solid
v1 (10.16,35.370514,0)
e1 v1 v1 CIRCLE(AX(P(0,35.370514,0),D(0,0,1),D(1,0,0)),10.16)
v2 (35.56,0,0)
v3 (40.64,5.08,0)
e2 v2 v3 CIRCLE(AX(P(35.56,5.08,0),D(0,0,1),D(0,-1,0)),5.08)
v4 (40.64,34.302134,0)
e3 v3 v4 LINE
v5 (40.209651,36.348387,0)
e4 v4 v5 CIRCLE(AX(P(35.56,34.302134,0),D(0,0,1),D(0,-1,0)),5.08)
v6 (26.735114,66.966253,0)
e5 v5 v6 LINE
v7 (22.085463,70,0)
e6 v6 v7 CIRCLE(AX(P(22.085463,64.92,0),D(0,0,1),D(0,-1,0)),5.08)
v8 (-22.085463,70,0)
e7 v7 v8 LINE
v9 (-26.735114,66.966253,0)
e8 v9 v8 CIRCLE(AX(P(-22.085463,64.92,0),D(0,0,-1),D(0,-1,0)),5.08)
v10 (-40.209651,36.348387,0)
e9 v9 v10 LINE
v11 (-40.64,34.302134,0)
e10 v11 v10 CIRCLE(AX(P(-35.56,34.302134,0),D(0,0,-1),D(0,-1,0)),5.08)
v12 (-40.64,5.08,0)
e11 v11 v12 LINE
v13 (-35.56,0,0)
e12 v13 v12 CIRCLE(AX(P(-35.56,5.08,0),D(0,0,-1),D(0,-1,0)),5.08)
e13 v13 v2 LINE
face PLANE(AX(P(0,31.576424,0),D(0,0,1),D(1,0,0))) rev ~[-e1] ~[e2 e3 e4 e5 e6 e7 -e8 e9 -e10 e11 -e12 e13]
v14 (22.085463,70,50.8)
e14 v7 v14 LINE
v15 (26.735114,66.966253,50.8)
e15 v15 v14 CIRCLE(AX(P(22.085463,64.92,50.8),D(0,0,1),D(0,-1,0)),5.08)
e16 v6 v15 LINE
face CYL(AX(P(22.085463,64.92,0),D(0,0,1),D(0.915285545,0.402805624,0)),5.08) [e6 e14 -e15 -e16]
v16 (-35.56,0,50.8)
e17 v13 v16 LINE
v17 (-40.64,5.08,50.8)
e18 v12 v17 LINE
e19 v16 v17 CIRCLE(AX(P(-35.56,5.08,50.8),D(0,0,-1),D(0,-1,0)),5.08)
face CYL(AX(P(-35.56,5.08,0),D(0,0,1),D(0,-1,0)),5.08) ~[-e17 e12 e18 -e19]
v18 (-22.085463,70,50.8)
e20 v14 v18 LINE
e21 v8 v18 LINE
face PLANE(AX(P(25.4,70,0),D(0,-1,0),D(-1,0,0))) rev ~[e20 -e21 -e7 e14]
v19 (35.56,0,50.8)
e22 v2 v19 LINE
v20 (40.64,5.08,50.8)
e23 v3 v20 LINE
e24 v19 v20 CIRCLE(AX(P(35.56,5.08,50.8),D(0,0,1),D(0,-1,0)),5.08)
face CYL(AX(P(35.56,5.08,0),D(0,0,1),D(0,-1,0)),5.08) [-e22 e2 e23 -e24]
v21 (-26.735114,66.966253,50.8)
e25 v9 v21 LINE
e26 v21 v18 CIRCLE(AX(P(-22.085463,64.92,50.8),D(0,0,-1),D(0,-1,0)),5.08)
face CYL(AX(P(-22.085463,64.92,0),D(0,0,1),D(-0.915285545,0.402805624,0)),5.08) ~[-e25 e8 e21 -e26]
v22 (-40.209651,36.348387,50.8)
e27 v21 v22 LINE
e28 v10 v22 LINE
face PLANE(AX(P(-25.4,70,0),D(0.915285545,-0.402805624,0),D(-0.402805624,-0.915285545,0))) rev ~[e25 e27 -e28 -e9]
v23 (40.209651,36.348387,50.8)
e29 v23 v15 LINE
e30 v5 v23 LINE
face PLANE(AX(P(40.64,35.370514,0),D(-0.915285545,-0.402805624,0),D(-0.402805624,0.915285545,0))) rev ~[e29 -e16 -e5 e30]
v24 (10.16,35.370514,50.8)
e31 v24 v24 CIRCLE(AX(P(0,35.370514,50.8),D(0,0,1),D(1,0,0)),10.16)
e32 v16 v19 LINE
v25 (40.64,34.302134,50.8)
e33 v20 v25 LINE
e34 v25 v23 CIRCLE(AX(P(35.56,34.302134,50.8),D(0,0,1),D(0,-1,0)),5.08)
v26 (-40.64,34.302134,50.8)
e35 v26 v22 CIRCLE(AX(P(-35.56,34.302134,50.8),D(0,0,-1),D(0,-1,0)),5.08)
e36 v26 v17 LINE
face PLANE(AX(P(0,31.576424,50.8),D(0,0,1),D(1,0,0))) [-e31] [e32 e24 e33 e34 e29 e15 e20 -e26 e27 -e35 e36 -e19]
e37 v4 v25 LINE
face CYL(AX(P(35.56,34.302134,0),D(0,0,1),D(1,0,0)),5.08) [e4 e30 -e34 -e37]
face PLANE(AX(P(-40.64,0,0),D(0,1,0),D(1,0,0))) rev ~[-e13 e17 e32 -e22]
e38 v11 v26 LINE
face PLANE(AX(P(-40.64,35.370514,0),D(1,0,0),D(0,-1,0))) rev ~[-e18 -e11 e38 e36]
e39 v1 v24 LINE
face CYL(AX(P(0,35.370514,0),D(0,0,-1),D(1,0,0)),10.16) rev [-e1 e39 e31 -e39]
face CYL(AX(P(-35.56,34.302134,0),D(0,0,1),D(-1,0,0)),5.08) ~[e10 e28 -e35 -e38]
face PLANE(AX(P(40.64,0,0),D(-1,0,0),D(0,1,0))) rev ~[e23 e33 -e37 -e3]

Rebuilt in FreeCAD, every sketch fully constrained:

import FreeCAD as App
import Part
import Sketcher

V = App.Vector
Q = App.Units.Quantity


def edges_at(feature, points):
    """Names of the edges that pass closest to the given points."""
    edges = feature.Shape.Edges
    near = lambda p: min(range(len(edges)), key=lambda i: edges[i].distToShape(Part.Vertex(*p))[0])
    return sorted({f"Edge{near(p) + 1}" for p in points})

doc = App.newDocument("Part")
body = doc.addObject("PartDesign::Body", "Body")

# Sketch on XY plane
sketch1 = body.newObject("Sketcher::SketchObject", "Sketch")
sketch1.AttachmentSupport = (doc.getObject("XY_Plane"), [""])
sketch1.MapMode = "FlatFace"
sketch1.addGeometry(Part.LineSegment(V(-41, 0, 0), V(41, 0, 0)), False)
sketch1.addGeometry(Part.LineSegment(V(41, 0, 0), V(41, 35, 0)), False)
sketch1.addGeometry(Part.LineSegment(V(41, 35, 0), V(25, 70, 0)), False)
sketch1.addGeometry(Part.LineSegment(V(25, 70, 0), V(-25, 70, 0)), False)
sketch1.addGeometry(Part.LineSegment(V(-25, 70, 0), V(-41, 35, 0)), False)
sketch1.addGeometry(Part.LineSegment(V(-41, 35, 0), V(-41, 0, 0)), False)
sketch1.addGeometry(Part.Circle(V(0, 35, 0), V(0, 0, 1), 10), False)
sketch1.addConstraint(Sketcher.Constraint("Coincident", 0, 2, 1, 1))
sketch1.addConstraint(Sketcher.Constraint("Coincident", 1, 2, 2, 1))
sketch1.addConstraint(Sketcher.Constraint("Coincident", 2, 2, 3, 1))
sketch1.addConstraint(Sketcher.Constraint("Coincident", 3, 2, 4, 1))
sketch1.addConstraint(Sketcher.Constraint("Coincident", 4, 2, 5, 1))
sketch1.addConstraint(Sketcher.Constraint("Coincident", 5, 2, 0, 1))
sketch1.addConstraint(Sketcher.Constraint("Horizontal", 0))
sketch1.addConstraint(Sketcher.Constraint("Vertical", 1))
sketch1.addConstraint(Sketcher.Constraint("Horizontal", 3))
sketch1.addConstraint(Sketcher.Constraint("Vertical", 5))
sketch1.addConstraint(Sketcher.Constraint("Symmetric", 0, 2, 5, 2, -1, 1))
sketch1.addConstraint(Sketcher.Constraint("PointOnObject", 6, 3, -2))
sketch1.addConstraint(Sketcher.Constraint("Horizontal", 6, 3, 1, 2))
sketch1.addConstraint(Sketcher.Constraint("Horizontal", 1, 2, 4, 2))
sketch1.addConstraint(Sketcher.Constraint("Equal", 2, 4))
sketch1.addConstraint(Sketcher.Constraint("Diameter", 6, Q("0.8 in")))
sketch1.addConstraint(Sketcher.Constraint("DistanceX", 3, 2, 3, 1, Q("2 in")))
sketch1.addConstraint(Sketcher.Constraint("DistanceX", 0, 1, 0, 2, Q("3.2 in")))
sketch1.addConstraint(Sketcher.Constraint("DistanceY", -1, 1, 2, 2, Q("70 mm")))
sketch1.addConstraint(Sketcher.Constraint("DistanceY", 1, 1, 1, 2, Q("35.370514 mm")))
pad1 = body.newObject("PartDesign::Pad", "Pad")
pad1.Profile = sketch1
pad1.Length = Q("2 in")
doc.recompute()

fillet = body.newObject("PartDesign::Fillet", "Fillet")
fillet.Base = (pad1, edges_at(pad1, [
    (40.64, 0, 25.4),
    (40.64, 35.371, 25.4),
    (25.4, 70, 25.4),
    (-25.4, 70, 25.4),
    (-40.64, 35.371, 25.4),
    (-40.64, 0, 25.4),
]))
fillet.Radius = Q("0.2 in")

doc.recompute()
